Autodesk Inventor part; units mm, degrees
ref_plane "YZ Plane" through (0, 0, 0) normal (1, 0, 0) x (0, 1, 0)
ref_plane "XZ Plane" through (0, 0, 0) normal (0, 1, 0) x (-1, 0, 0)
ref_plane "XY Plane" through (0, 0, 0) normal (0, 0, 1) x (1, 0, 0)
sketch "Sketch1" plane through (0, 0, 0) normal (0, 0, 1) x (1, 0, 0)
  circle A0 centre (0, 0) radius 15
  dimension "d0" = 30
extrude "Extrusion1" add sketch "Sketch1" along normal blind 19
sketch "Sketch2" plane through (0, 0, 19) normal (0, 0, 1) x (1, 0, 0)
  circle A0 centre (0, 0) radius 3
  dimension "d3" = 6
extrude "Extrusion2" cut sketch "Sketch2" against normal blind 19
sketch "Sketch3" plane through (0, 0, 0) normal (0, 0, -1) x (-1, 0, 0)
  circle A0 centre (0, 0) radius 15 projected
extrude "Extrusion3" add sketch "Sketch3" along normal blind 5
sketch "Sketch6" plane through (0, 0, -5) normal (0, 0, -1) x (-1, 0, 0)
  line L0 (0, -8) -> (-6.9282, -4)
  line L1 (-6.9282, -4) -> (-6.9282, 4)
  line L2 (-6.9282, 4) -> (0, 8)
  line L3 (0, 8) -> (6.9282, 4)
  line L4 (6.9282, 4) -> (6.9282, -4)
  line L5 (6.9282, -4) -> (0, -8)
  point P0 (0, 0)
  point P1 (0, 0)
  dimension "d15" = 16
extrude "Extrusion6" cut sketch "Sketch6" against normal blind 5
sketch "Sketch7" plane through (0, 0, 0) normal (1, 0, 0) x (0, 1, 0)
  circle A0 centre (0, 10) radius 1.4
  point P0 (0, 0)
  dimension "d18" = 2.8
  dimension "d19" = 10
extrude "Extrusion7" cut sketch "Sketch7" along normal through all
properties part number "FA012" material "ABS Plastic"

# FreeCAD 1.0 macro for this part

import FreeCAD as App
import Part
import Sketcher

V = App.Vector
Q = App.Units.Quantity

doc = App.newDocument("Part")
body = doc.addObject("PartDesign::Body", "Body")

sketch1 = doc.addObject("Sketcher::SketchObject", "Sketch")
body.addObject(sketch1)
sketch1.AttachmentSupport = (doc.XY_Plane, [""])
sketch1.MapMode = "FlatFace"
sketch1.addGeometry(Part.Circle(V(0, 0, 0), V(0, 0, 1), 15), False)
sketch1.addConstraint(Sketcher.Constraint("Coincident", 0, 3, -1, 1))
sketch1.addConstraint(Sketcher.Constraint("Diameter", 0, Q("30 mm")))
pad1 = doc.addObject("PartDesign::Pad", "Pad")
body.addObject(pad1)
pad1.Profile = sketch1
pad1.Length = 19

sketch2 = doc.addObject("Sketcher::SketchObject", "Sketch001")
body.addObject(sketch2)
sketch2.AttachmentSupport = (doc.XY_Plane, [""])
sketch2.MapMode = "FlatFace"
sketch2.AttachmentOffset = App.Placement(V(0, 0, 19), App.Rotation())
sketch2.addGeometry(Part.Circle(V(0, 0, 0), V(0, 0, 1), 3), False)
sketch2.addConstraint(Sketcher.Constraint("Coincident", 0, 3, -1, 1))
sketch2.addConstraint(Sketcher.Constraint("Diameter", 0, Q("6 mm")))
pocket1 = doc.addObject("PartDesign::Pocket", "Pocket")
body.addObject(pocket1)
pocket1.Profile = sketch2
pocket1.Length = 19

sketch3 = doc.addObject("Sketcher::SketchObject", "Sketch002")
body.addObject(sketch3)
sketch3.AttachmentSupport = (doc.XY_Plane, [""])
sketch3.MapMode = "FlatFace"
sketch3.addGeometry(Part.Circle(V(0, 0, 0), V(0, 0, 1), 15), False)
sketch3.addConstraint(Sketcher.Constraint("Coincident", 0, 3, -1, 1))
sketch3.addConstraint(Sketcher.Constraint("Diameter", 0, Q("30 mm")))
pad2 = doc.addObject("PartDesign::Pad", "Pad001")
body.addObject(pad2)
pad2.Profile = sketch3
pad2.Length = 5
pad2.Reversed = True

sketch4 = doc.addObject("Sketcher::SketchObject", "Sketch003")
body.addObject(sketch4)
sketch4.AttachmentSupport = (doc.XY_Plane, [""])
sketch4.MapMode = "FlatFace"
sketch4.AttachmentOffset = App.Placement(V(0, 0, -5), App.Rotation())
sketch4.addGeometry(Part.LineSegment(V(6.9282, -4, 0), V(0, -8, 0)), False)
sketch4.addGeometry(Part.LineSegment(V(0, -8, 0), V(-6.9282, -4, 0)), False)
sketch4.addGeometry(Part.LineSegment(V(-6.9282, -4, 0), V(-6.9282, 4, 0)), False)
sketch4.addGeometry(Part.LineSegment(V(-6.9282, 4, 0), V(0, 8, 0)), False)
sketch4.addGeometry(Part.LineSegment(V(0, 8, 0), V(6.9282, 4, 0)), False)
sketch4.addGeometry(Part.LineSegment(V(6.9282, 4, 0), V(6.9282, -4, 0)), False)
sketch4.addConstraint(Sketcher.Constraint("Coincident", 0, 2, 1, 1))
sketch4.addConstraint(Sketcher.Constraint("Coincident", 1, 2, 2, 1))
sketch4.addConstraint(Sketcher.Constraint("Coincident", 2, 2, 3, 1))
sketch4.addConstraint(Sketcher.Constraint("Coincident", 3, 2, 4, 1))
sketch4.addConstraint(Sketcher.Constraint("Coincident", 4, 2, 5, 1))
sketch4.addConstraint(Sketcher.Constraint("Coincident", 5, 2, 0, 1))
sketch4.addConstraint(Sketcher.Constraint("Vertical", 2))
sketch4.addConstraint(Sketcher.Constraint("Vertical", 5))
sketch4.addConstraint(Sketcher.Constraint("Symmetric", 0, 2, 3, 2, -1, 1))
sketch4.addConstraint(Sketcher.Constraint("Symmetric", 1, 2, 4, 2, -1, 1))
sketch4.addConstraint(Sketcher.Constraint("PointOnObject", 0, 2, -2))
sketch4.addConstraint(Sketcher.Constraint("Parallel", 0, 3))
sketch4.addConstraint(Sketcher.Constraint("Horizontal", 2, 2, 4, 2))
sketch4.addConstraint(Sketcher.Constraint("DistanceY", 0, 2, 3, 2, Q("16 mm")))
sketch4.addConstraint(Sketcher.Constraint("DistanceY", 2, 1, 2, 2, Q("8 mm")))
sketch4.addConstraint(Sketcher.Constraint("Angle", 0, Q("-150 deg")))
pocket2 = doc.addObject("PartDesign::Pocket", "Pocket001")
body.addObject(pocket2)
pocket2.Profile = sketch4
pocket2.Length = 5
pocket2.Reversed = True

sketch5 = doc.addObject("Sketcher::SketchObject", "Sketch004")
body.addObject(sketch5)
sketch5.AttachmentSupport = (doc.YZ_Plane, [""])
sketch5.MapMode = "FlatFace"
sketch5.addGeometry(Part.Circle(V(0, 10, 0), V(0, 0, 1), 1.4), False)
sketch5.addConstraint(Sketcher.Constraint("PointOnObject", 0, 3, -2))
sketch5.addConstraint(Sketcher.Constraint("Diameter", 0, Q("2.8 mm")))
sketch5.addConstraint(Sketcher.Constraint("DistanceY", -1, 1, 0, 3, Q("10 mm")))
pocket3 = doc.addObject("PartDesign::Pocket", "Pocket002")
body.addObject(pocket3)
pocket3.Profile = sketch5
pocket3.Type = "ThroughAll"
pocket3.Reversed = True

doc.recompute()
